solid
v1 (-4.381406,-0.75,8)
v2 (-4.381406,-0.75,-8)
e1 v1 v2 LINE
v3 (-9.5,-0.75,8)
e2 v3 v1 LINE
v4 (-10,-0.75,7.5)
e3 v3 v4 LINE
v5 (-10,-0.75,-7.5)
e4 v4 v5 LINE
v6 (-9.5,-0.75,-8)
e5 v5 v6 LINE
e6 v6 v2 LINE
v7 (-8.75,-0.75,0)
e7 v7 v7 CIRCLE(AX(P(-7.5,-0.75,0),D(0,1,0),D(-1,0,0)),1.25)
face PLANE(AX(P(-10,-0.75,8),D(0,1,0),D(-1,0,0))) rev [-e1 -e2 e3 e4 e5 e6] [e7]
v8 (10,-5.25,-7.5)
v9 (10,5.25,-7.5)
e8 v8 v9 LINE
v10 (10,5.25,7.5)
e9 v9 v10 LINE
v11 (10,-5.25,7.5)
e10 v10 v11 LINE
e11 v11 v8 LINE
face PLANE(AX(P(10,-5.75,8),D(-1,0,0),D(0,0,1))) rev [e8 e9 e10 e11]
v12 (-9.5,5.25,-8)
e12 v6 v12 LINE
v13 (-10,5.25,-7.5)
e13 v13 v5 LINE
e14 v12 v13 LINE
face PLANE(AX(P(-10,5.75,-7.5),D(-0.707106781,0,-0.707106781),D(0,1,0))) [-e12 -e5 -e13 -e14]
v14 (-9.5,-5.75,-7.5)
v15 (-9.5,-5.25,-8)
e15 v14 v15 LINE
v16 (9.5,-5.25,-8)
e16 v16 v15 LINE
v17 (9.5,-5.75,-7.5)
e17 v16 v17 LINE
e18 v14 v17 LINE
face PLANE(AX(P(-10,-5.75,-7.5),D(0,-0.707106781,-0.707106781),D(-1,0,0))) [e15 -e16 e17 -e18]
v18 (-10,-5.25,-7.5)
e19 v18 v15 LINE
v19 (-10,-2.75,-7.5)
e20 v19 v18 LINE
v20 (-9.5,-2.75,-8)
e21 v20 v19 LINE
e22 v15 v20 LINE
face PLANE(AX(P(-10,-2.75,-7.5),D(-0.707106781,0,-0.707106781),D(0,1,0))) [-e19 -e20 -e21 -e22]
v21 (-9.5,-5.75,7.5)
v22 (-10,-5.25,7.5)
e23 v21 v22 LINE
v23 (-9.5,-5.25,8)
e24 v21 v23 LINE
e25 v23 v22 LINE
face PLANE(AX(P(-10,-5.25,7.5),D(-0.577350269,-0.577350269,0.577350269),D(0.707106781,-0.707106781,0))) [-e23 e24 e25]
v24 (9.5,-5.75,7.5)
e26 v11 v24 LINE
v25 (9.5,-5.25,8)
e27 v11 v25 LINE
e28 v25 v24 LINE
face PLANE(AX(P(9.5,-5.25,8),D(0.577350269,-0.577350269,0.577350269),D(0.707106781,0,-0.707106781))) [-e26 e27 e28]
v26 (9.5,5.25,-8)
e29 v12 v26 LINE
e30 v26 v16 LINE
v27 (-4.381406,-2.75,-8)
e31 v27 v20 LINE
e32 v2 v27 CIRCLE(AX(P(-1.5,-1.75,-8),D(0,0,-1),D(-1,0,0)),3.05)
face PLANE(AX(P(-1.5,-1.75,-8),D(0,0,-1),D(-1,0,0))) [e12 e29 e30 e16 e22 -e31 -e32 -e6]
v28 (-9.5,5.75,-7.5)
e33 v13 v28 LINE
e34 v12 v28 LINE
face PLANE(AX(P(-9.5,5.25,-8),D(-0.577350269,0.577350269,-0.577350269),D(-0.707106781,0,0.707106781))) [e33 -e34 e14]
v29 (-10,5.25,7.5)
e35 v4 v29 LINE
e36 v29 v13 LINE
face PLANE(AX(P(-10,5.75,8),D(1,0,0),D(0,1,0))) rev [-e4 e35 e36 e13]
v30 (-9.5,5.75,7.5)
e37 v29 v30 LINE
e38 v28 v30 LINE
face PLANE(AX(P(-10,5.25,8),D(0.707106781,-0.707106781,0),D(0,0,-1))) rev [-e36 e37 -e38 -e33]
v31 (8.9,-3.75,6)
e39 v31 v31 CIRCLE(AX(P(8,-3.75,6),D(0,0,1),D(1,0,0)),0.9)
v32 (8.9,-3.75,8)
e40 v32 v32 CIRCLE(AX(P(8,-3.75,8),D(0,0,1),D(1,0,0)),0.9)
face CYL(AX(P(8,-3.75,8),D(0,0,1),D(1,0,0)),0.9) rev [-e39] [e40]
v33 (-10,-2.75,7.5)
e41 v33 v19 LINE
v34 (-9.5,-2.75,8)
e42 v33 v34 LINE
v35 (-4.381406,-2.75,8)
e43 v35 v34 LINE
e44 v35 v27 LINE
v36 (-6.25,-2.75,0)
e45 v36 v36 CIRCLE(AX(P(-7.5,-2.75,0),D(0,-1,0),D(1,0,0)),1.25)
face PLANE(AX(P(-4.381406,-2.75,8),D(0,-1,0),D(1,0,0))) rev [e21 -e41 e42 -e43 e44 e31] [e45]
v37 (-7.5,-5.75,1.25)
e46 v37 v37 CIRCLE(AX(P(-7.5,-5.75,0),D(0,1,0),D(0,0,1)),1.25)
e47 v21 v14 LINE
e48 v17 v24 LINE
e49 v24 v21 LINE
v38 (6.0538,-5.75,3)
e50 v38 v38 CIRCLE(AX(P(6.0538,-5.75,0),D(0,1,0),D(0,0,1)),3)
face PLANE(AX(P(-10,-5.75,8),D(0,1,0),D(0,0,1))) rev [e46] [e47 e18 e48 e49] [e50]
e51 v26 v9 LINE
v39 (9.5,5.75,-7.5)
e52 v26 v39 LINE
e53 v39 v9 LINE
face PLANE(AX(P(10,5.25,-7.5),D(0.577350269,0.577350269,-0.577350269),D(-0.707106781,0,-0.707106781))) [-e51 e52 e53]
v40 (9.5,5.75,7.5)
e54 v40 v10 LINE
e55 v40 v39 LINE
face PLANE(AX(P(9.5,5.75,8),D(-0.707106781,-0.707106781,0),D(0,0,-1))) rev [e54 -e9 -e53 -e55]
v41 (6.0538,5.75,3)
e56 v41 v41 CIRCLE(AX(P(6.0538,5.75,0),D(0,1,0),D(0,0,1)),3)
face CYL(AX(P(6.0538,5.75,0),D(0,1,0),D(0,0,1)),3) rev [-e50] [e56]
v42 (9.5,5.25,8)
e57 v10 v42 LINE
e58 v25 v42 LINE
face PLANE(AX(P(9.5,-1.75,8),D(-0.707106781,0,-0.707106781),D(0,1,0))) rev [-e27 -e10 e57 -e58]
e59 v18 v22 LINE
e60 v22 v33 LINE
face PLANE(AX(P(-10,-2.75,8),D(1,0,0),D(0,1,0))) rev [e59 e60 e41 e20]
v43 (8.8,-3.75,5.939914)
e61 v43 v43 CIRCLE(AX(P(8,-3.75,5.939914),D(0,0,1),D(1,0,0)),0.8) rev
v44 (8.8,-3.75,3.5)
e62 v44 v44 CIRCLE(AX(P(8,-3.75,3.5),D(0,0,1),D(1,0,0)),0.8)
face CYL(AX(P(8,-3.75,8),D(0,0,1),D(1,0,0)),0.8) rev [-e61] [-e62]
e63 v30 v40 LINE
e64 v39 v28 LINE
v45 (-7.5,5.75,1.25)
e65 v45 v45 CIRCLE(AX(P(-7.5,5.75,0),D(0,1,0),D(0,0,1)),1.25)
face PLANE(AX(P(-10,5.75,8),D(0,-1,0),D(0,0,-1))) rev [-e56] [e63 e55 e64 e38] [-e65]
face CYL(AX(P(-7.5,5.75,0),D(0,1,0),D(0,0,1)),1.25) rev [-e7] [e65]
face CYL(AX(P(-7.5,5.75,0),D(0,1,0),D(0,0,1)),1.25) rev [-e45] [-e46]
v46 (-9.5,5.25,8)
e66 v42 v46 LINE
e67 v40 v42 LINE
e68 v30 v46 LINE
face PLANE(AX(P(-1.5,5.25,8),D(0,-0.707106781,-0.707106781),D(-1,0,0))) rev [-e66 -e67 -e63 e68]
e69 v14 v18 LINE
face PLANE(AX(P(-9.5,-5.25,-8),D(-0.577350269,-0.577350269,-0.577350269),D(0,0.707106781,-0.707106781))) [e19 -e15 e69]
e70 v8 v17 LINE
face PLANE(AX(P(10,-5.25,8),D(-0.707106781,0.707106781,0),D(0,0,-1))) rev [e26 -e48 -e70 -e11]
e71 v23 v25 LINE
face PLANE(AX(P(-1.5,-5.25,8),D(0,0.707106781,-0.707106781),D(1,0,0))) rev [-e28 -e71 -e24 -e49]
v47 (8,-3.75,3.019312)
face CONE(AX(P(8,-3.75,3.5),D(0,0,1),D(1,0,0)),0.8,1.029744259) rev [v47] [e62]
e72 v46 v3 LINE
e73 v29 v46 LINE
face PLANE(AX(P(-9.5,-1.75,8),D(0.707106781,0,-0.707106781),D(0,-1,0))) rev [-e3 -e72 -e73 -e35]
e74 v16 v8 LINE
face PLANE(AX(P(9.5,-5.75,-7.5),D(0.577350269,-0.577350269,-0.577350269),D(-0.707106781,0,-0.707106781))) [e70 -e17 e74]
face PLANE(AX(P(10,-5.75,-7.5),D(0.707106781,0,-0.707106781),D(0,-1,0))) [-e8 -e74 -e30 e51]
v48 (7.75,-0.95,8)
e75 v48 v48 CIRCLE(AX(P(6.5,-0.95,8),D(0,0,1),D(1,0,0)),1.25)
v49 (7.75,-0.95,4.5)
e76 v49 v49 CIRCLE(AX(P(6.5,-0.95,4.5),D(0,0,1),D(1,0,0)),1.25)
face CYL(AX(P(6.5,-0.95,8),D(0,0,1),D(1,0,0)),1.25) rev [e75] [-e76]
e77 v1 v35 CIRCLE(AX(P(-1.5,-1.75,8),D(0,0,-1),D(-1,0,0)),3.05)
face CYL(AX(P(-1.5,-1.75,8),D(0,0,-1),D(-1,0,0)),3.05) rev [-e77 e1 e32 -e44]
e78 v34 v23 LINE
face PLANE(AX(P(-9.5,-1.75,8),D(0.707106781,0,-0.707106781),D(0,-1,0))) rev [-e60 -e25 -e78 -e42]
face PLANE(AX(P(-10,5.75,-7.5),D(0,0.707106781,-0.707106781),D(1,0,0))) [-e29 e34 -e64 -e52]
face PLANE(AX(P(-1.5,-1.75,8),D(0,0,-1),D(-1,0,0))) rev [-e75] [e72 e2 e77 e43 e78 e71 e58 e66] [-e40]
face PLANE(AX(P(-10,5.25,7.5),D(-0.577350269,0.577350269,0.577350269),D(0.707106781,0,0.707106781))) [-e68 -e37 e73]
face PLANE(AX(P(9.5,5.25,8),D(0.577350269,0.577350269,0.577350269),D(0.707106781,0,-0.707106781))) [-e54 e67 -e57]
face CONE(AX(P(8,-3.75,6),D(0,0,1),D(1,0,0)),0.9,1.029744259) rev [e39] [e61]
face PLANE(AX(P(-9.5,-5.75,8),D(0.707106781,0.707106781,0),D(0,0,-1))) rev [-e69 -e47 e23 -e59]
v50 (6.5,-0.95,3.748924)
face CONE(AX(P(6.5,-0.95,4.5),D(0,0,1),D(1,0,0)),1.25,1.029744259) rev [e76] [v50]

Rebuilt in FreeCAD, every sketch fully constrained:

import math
import FreeCAD as App
import Part
import Sketcher
from FreeCAD import Vector
Q = App.Units.Quantity


def edges_at(feature, points):
    """Names of the edges that pass closest to the given points."""
    edges = feature.Shape.Edges
    near = lambda p: min(range(len(edges)), key=lambda i: edges[i].distToShape(Part.Vertex(*p))[0])
    return sorted({f"Edge{near(p) + 1}" for p in points})

doc = App.newDocument("Part")
body = doc.addObject("PartDesign::Body", "Body")

# Sketch on XY plane
sketch1 = doc.addObject("Sketcher::SketchObject", "Sketch")
body.addObject(sketch1)
sketch1.AttachmentSupport = (doc.XY_Plane, [""])
sketch1.MapMode = "FlatFace"
sketch1.addGeometry([
    Part.LineSegment(Vector(-10, -0.8, 0), Vector(-4.4, -0.8, 0)),  # 0
    Part.ArcOfCircle(Part.Circle(Vector(-1.5, -1.8, 0), Vector(0, 0, 1), 3), math.radians(-161), math.radians(161)),  # 1
    Part.LineSegment(Vector(-4.4, -2.8, 0), Vector(-10, -2.8, 0)),  # 2
    Part.LineSegment(Vector(-10, -2.8, 0), Vector(-10, -5.8, 0)),  # 3
    Part.LineSegment(Vector(-10, -5.8, 0), Vector(10, -5.8, 0)),  # 4
    Part.LineSegment(Vector(10, -5.8, 0), Vector(10, 5.8, 0)),  # 5
    Part.LineSegment(Vector(10, 5.8, 0), Vector(-10, 5.8, 0)),  # 6
    Part.LineSegment(Vector(-10, 5.8, 0), Vector(-10, -0.8, 0)),  # 7
], False)
sketch1.addConstraint([
    Sketcher.Constraint("Coincident", 0, 2, 1, 2),
    Sketcher.Constraint("Coincident", 1, 1, 2, 1),
    Sketcher.Constraint("Coincident", 2, 2, 3, 1),
    Sketcher.Constraint("Coincident", 3, 2, 4, 1),
    Sketcher.Constraint("Coincident", 4, 2, 5, 1),
    Sketcher.Constraint("Coincident", 5, 2, 6, 1),
    Sketcher.Constraint("Coincident", 6, 2, 7, 1),
    Sketcher.Constraint("Coincident", 7, 2, 0, 1),
    Sketcher.Constraint("Horizontal", 0),
    Sketcher.Constraint("Horizontal", 2),
    Sketcher.Constraint("Vertical", 3),
    Sketcher.Constraint("Horizontal", 4),
    Sketcher.Constraint("Vertical", 5),
    Sketcher.Constraint("Horizontal", 6),
    Sketcher.Constraint("Vertical", 7),
    Sketcher.Constraint("Symmetric", 3, 2, 5, 2, -1, 1),
    Sketcher.Constraint("Vertical", 0, 2, 1, 1),
    Sketcher.Constraint("Vertical", 3, 2, 6, 2),
    Sketcher.Constraint("DistanceX", 4, 1, 4, 2, Q("20 mm")),
    Sketcher.Constraint("DistanceY", 3, 2, 3, 1, Q("3 mm")),
    Sketcher.Constraint("Radius", 1, Q("3.05 mm")),
    Sketcher.Constraint("DistanceY", 5, 1, 5, 2, Q("11.5 mm")),
    Sketcher.Constraint("DistanceY", 7, 2, 7, 1, Q("6.5 mm")),
    Sketcher.Constraint("DistanceX", 1, 3, -1, 1, Q("1.5 mm")),
])
pad1 = doc.addObject("PartDesign::Pad", "Pad")
body.addObject(pad1)
pad1.Profile = sketch1
pad1.Length = 16
pad1.Midplane = True
doc.recompute()

chamfer = doc.addObject("PartDesign::Chamfer", "Chamfer")
body.addObject(chamfer)
chamfer.Base = (pad1, edges_at(pad1, [
    (-10, 2.5, 8),
    (0, 5.75, -8),
    (10, 0, -8),
    (10, -5.75, 0),
    (-10, -5.75, 0),
    (-10, 5.75, 0),
    (10, 5.75, 0),
    (-10, -4.25, 8),
    (0, -5.75, 8),
    (10, 0, 8),
    (0, 5.75, 8),
    (0, -5.75, -8),
    (-10, -4.25, -8),
    (-10, 2.5, -8),
]))
chamfer.Size = 0.5

# Sketch on XY plane
sketch2 = doc.addObject("Sketcher::SketchObject", "Sketch001")
body.addObject(sketch2)
sketch2.AttachmentSupport = (doc.XY_Plane, [""])
sketch2.MapMode = "FlatFace"
sketch2.AttachmentOffset = App.Placement(Vector(0, 0, 8), App.Rotation())
sketch2.addGeometry(Part.Circle(Vector(6.5, -0.9, 0), Vector(0, 0, 1), 1.2), False)
sketch2.addConstraint([
    Sketcher.Constraint("Diameter", 0, Q("2.5 mm")),
    Sketcher.Constraint("DistanceX", -1, 1, 0, 3, Q("6.5 mm")),
    Sketcher.Constraint("DistanceY", 0, 3, -1, 1, Q("0.95 mm")),
])
doc.recompute()
hole = doc.addObject("PartDesign::Hole", "Hole")
body.addObject(hole)
hole.Profile = sketch2
hole.ThreadType = "None"
hole.Diameter = 2.5
hole.DepthType = "Dimension"
hole.Depth = 3.5
hole.DrillPoint = "Angled"
hole.DrillPointAngle = 118

# Sketch on XY plane
sketch3 = doc.addObject("Sketcher::SketchObject", "Sketch002")
body.addObject(sketch3)
sketch3.AttachmentSupport = (doc.XY_Plane, [""])
sketch3.MapMode = "FlatFace"
sketch3.AttachmentOffset = App.Placement(Vector(0, 0, 8), App.Rotation())
sketch3.addGeometry(Part.Circle(Vector(8, -3.8, 0), Vector(0, 0, 1), 0.9), False)
sketch3.addConstraint([
    Sketcher.Constraint("Diameter", 0, Q("1.8 mm")),
    Sketcher.Constraint("DistanceX", -1, 1, 0, 3, Q("8 mm")),
    Sketcher.Constraint("DistanceY", 0, 3, -1, 1, Q("3.75 mm")),
])
doc.recompute()
hole2 = doc.addObject("PartDesign::Hole", "Hole001")
body.addObject(hole2)
hole2.Profile = sketch3
hole2.ThreadType = "None"
hole2.Diameter = 1.8
hole2.DepthType = "Dimension"
hole2.Depth = 2
hole2.DrillPoint = "Angled"
hole2.DrillPointAngle = 118

# Sketch on XY plane
sketch4 = doc.addObject("Sketcher::SketchObject", "Sketch003")
body.addObject(sketch4)
sketch4.AttachmentSupport = (doc.XY_Plane, [""])
sketch4.MapMode = "FlatFace"
sketch4.AttachmentOffset = App.Placement(Vector(0, 0, 8), App.Rotation())
sketch4.addGeometry(Part.Circle(Vector(8, -3.8, 0), Vector(0, 0, 1), 0.8), False)
sketch4.addConstraint([
    Sketcher.Constraint("Diameter", 0, Q("1.6 mm")),
    Sketcher.Constraint("DistanceX", -1, 1, 0, 3, Q("8 mm")),
    Sketcher.Constraint("DistanceY", 0, 3, -1, 1, Q("3.75 mm")),
])
doc.recompute()
hole3 = doc.addObject("PartDesign::Hole", "Hole002")
body.addObject(hole3)
hole3.Profile = sketch4
hole3.ThreadType = "None"
hole3.Diameter = 1.6
hole3.DepthType = "Dimension"
hole3.Depth = 4.5
hole3.DrillPoint = "Angled"
hole3.DrillPointAngle = 118

# Sketch on XZ plane
sketch5 = doc.addObject("Sketcher::SketchObject", "Sketch004")
body.addObject(sketch5)
sketch5.AttachmentSupport = (doc.XZ_Plane, [""])
sketch5.MapMode = "FlatFace"
sketch5.AttachmentOffset = App.Placement(Vector(0, 0, -5.75), App.Rotation())
sketch5.addGeometry(Part.Circle(Vector(-7.5, 0, 0), Vector(0, 0, 1), 1.2), False)
sketch5.addConstraint([
    Sketcher.Constraint("PointOnObject", 0, 3, -1),
    Sketcher.Constraint("Diameter", 0, Q("2.5 mm")),
    Sketcher.Constraint("DistanceX", 0, 3, -1, 1, Q("7.5 mm")),
])
doc.recompute()
hole4 = doc.addObject("PartDesign::Hole", "Hole003")
body.addObject(hole4)
hole4.Profile = sketch5
hole4.ThreadType = "None"
hole4.Diameter = 2.5
hole4.DepthType = "ThroughAll"
hole4.Reversed = True

# Sketch on XZ plane
sketch6 = doc.addObject("Sketcher::SketchObject", "Sketch005")
body.addObject(sketch6)
sketch6.AttachmentSupport = (doc.XZ_Plane, [""])
sketch6.MapMode = "FlatFace"
sketch6.AttachmentOffset = App.Placement(Vector(0, 0, -5.75), App.Rotation())
sketch6.addGeometry(Part.Circle(Vector(6.1, 0, 0), Vector(0, 0, 1), 3), False)
sketch6.addConstraint([
    Sketcher.Constraint("PointOnObject", 0, 3, -1),
    Sketcher.Constraint("Diameter", 0, Q("6 mm")),
    Sketcher.Constraint("DistanceX", -1, 1, 0, 3, Q("6.0538 mm")),
])
doc.recompute()
hole5 = doc.addObject("PartDesign::Hole", "Hole004")
body.addObject(hole5)
hole5.Profile = sketch6
hole5.ThreadType = "None"
hole5.Diameter = 6
hole5.DepthType = "ThroughAll"
hole5.Reversed = True

doc.recompute()
